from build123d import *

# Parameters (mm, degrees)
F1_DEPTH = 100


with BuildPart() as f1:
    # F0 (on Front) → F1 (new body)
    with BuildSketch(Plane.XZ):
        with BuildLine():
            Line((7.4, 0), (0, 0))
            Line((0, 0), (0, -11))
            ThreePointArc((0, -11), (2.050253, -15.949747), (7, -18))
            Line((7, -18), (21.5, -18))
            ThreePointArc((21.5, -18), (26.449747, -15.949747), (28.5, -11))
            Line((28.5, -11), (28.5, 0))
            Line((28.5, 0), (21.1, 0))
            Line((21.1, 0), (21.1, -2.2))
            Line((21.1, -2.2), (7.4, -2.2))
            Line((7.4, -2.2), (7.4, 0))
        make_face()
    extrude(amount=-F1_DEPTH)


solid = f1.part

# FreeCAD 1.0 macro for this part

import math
import FreeCAD as App
import Part
import Sketcher

V = App.Vector

doc = App.newDocument("Part")
params = doc.addObject("Spreadsheet::Sheet", "Params")
for row, (alias, value) in enumerate([
    ("sketch1_radius", "7.000002 mm"),
    ("sketch1_height", "11 mm"),
    ("sketch1_width", "7.4 mm"),
    ("sketch1_width2", "14.5 mm"),
    ("sketch1_height2", "2.2 mm"),
    ("pad1_length", "100 mm"),
], start=1):
    params.set(f"A{row}", alias)
    params.set(f"B{row}", "=" + value)
    params.setAlias(f"B{row}", alias)

body = doc.addObject("PartDesign::Body", "Body")

# Sketch on XZ plane
sketch1 = body.newObject("Sketcher::SketchObject", "Sketch")
sketch1.AttachmentSupport = (doc.getObject("XZ_Plane"), [""])
sketch1.MapMode = "FlatFace"
sketch1.addGeometry([
    Part.LineSegment(V(7.4, 0, 0), V(0, 0, 0)),  # 0
    Part.LineSegment(V(0, 0, 0), V(0, -11, 0)),  # 1
    Part.ArcOfCircle(Part.Circle(V(7, -11, 0), V(0, 0, 1), 7), math.radians(-180), math.radians(-90)),  # 2
    Part.LineSegment(V(7, -18, 0), V(21.5, -18, 0)),  # 3
    Part.ArcOfCircle(Part.Circle(V(21.5, -11, 0), V(0, 0, 1), 7), math.radians(-90), math.radians(0)),  # 4
    Part.LineSegment(V(28.5, -11, 0), V(28.5, 0, 0)),  # 5
    Part.LineSegment(V(28.5, 0, 0), V(21.1, 0, 0)),  # 6
    Part.LineSegment(V(21.1, 0, 0), V(21.1, -2.2, 0)),  # 7
    Part.LineSegment(V(21.1, -2.2, 0), V(7.4, -2.2, 0)),  # 8
    Part.LineSegment(V(7.4, -2.2, 0), V(7.4, 0, 0)),  # 9
], False)
sketch1.addConstraint([
    Sketcher.Constraint("Coincident", 0, 2, 1, 1),
    Sketcher.Constraint("Tangent", 1, 2, 2, 1),
    Sketcher.Constraint("Tangent", 2, 2, 3, 1),
    Sketcher.Constraint("Tangent", 3, 2, 4, 1),
    Sketcher.Constraint("Tangent", 4, 2, 5, 1),
    Sketcher.Constraint("Coincident", 5, 2, 6, 1),
    Sketcher.Constraint("Coincident", 6, 2, 7, 1),
    Sketcher.Constraint("Coincident", 7, 2, 8, 1),
    Sketcher.Constraint("Coincident", 8, 2, 9, 1),
    Sketcher.Constraint("Coincident", 9, 2, 0, 1),
    Sketcher.Constraint("Horizontal", 0),
    Sketcher.Constraint("Vertical", 1),
    Sketcher.Constraint("Horizontal", 3),
    Sketcher.Constraint("Vertical", 5),
    Sketcher.Constraint("Horizontal", 6),
    Sketcher.Constraint("Vertical", 7),
    Sketcher.Constraint("Horizontal", 8),
    Sketcher.Constraint("Vertical", 9),
    Sketcher.Constraint("Coincident", 0, 2, -1, 1),
    Sketcher.Constraint("Equal", 2, 4),
    Sketcher.Constraint("PointOnObject", 5, 2, -1),
    Sketcher.Constraint("Equal", 0, 6),
    Sketcher.Constraint("Radius", 2, 7.000002),
    Sketcher.Constraint("DistanceY", 1, 2, 1, 1, 11.0),
    Sketcher.Constraint("DistanceX", 0, 2, 0, 1, 7.4),
    Sketcher.Constraint("DistanceX", 3, 1, 3, 2, 14.5),
    Sketcher.Constraint("DistanceY", 7, 2, 7, 1, 2.2),
])
sketch1.setExpression("Constraints[22]", "Params.sketch1_radius")
sketch1.setExpression("Constraints[23]", "Params.sketch1_height")
sketch1.setExpression("Constraints[24]", "Params.sketch1_width")
sketch1.setExpression("Constraints[25]", "Params.sketch1_width2")
sketch1.setExpression("Constraints[26]", "Params.sketch1_height2")
pad1 = body.newObject("PartDesign::Pad", "Pad")
pad1.Profile = sketch1
pad1.setExpression("Length", "Params.pad1_length")
pad1.Reversed = True

doc.recompute()
